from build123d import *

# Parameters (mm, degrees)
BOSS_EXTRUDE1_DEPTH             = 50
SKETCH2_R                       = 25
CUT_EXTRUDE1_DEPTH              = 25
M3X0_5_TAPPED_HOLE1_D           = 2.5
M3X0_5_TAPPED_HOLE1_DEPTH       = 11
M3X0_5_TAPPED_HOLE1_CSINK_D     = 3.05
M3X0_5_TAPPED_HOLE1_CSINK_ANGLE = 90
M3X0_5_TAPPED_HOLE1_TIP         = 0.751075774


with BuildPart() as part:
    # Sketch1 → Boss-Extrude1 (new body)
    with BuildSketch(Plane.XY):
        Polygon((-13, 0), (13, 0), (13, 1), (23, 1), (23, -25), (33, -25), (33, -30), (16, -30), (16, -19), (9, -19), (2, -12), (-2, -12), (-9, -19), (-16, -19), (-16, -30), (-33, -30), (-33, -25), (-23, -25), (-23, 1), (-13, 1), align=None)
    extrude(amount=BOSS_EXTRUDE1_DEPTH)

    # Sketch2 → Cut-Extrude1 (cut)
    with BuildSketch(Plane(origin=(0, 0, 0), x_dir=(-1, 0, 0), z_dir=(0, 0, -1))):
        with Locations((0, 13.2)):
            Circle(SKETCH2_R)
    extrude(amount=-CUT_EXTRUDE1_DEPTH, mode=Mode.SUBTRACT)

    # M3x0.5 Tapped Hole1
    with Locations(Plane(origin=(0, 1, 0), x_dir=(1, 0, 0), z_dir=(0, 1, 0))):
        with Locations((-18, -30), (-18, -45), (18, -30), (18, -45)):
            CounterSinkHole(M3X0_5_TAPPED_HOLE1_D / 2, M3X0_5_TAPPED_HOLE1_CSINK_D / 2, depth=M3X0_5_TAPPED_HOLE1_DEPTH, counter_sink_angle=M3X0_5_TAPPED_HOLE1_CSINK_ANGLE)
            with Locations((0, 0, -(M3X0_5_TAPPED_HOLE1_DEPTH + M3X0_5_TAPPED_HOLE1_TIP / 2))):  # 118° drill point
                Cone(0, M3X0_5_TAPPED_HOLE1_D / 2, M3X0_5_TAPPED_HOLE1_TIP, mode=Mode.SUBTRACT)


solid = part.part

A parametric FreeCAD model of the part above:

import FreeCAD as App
import Part
import Sketcher
Q = App.Units.Quantity


def add_polygon(sketch, points):
    """Adds a closed chain of lines whose ends are joined by coincident constraints."""
    first, n = sketch.GeometryCount, len(points)
    for a, b in zip(points, points[1:] + points[:1]):
        sketch.addGeometry(Part.LineSegment(App.Vector(*a, 0), App.Vector(*b, 0)), False)
    for i in range(n):
        sketch.addConstraint(Sketcher.Constraint("Coincident", first + i, 2, first + (i + 1) % n, 1))

doc = App.newDocument("Part")
body = doc.addObject("PartDesign::Body", "Body")

# Sketch on XY plane
sketch1 = body.newObject("Sketcher::SketchObject", "Sketch")
sketch1.AttachmentSupport = (doc.getObject("XY_Plane"), [""])
sketch1.MapMode = "FlatFace"
add_polygon(sketch1, [(13, 0), (-13, 0), (-13, 1), (-23, 1), (-23, -25), (-33, -25), (-33, -30), (-16, -30), (-16, -19), (-9, -19), (-2, -12), (2, -12), (9, -19), (16, -19), (16, -30), (33, -30), (33, -25), (23, -25), (23, 1), (13, 1)])  # lines 0-19
sketch1.addConstraint(Sketcher.Constraint("Horizontal", 0))
sketch1.addConstraint(Sketcher.Constraint("Vertical", 1))
sketch1.addConstraint(Sketcher.Constraint("Horizontal", 2))
sketch1.addConstraint(Sketcher.Constraint("Vertical", 3))
sketch1.addConstraint(Sketcher.Constraint("Horizontal", 4))
sketch1.addConstraint(Sketcher.Constraint("Vertical", 5))
sketch1.addConstraint(Sketcher.Constraint("Horizontal", 6))
sketch1.addConstraint(Sketcher.Constraint("Vertical", 7))
sketch1.addConstraint(Sketcher.Constraint("Horizontal", 8))
sketch1.addConstraint(Sketcher.Constraint("Horizontal", 10))
sketch1.addConstraint(Sketcher.Constraint("Horizontal", 12))
sketch1.addConstraint(Sketcher.Constraint("Vertical", 13))
sketch1.addConstraint(Sketcher.Constraint("Horizontal", 14))
sketch1.addConstraint(Sketcher.Constraint("Vertical", 15))
sketch1.addConstraint(Sketcher.Constraint("Horizontal", 16))
sketch1.addConstraint(Sketcher.Constraint("Vertical", 17))
sketch1.addConstraint(Sketcher.Constraint("Horizontal", 18))
sketch1.addConstraint(Sketcher.Constraint("Vertical", 19))
sketch1.addConstraint(Sketcher.Constraint("Symmetric", 0, 2, 19, 2, -1, 1))
sketch1.addConstraint(Sketcher.Constraint("Symmetric", 8, 2, 11, 2, -2))
sketch1.addConstraint(Sketcher.Constraint("Symmetric", 6, 2, 13, 2, -2))
sketch1.addConstraint(Sketcher.Constraint("Symmetric", 4, 2, 15, 2, -2))
sketch1.addConstraint(Sketcher.Constraint("Symmetric", 2, 2, 17, 2, -2))
sketch1.addConstraint(Sketcher.Constraint("Perpendicular", 9, 11))
sketch1.addConstraint(Sketcher.Constraint("Equal", 2, 4))
sketch1.addConstraint(Sketcher.Constraint("Equal", 0, 3))
sketch1.addConstraint(Sketcher.Constraint("Equal", 9, 11))
sketch1.addConstraint(Sketcher.Constraint("DistanceX", 0, 2, 0, 1, Q("26 mm")))
sketch1.addConstraint(Sketcher.Constraint("DistanceX", 2, 2, 2, 1, Q("10 mm")))
sketch1.addConstraint(Sketcher.Constraint("DistanceX", 6, 1, 6, 2, Q("17 mm")))
sketch1.addConstraint(Sketcher.Constraint("DistanceX", 8, 1, 8, 2, Q("7 mm")))
sketch1.addConstraint(Sketcher.Constraint("DistanceX", 10, 1, 10, 2, Q("4 mm")))
sketch1.addConstraint(Sketcher.Constraint("DistanceY", 1, 1, 1, 2, Q("1 mm")))
sketch1.addConstraint(Sketcher.Constraint("DistanceY", 5, 2, 5, 1, Q("5 mm")))
sketch1.addConstraint(Sketcher.Constraint("DistanceY", 7, 1, 7, 2, Q("11 mm")))
pad1 = body.newObject("PartDesign::Pad", "Pad")
pad1.Profile = sketch1
pad1.Length = 50

# Sketch on XY plane
sketch2 = body.newObject("Sketcher::SketchObject", "Sketch001")
sketch2.AttachmentSupport = (doc.getObject("XY_Plane"), [""])
sketch2.MapMode = "FlatFace"
sketch2.addGeometry(Part.Circle(App.Vector(0, 13, 0), App.Vector(0, 0, 1), 25), False)
sketch2.addConstraint(Sketcher.Constraint("PointOnObject", 0, 3, -2))
sketch2.addConstraint(Sketcher.Constraint("Diameter", 0, Q("50 mm")))
sketch2.addConstraint(Sketcher.Constraint("DistanceY", -1, 1, 0, 3, Q("13.2 mm")))
pocket1 = body.newObject("PartDesign::Pocket", "Pocket")
pocket1.Profile = sketch2
pocket1.Length = 25
pocket1.Reversed = True

# Sketch on XZ plane
sketch3 = body.newObject("Sketcher::SketchObject", "Sketch002")
sketch3.AttachmentSupport = (doc.getObject("XZ_Plane"), [""])
sketch3.MapMode = "FlatFace"
sketch3.AttachmentOffset = App.Placement(App.Vector(0, 0, -1), App.Rotation())
sketch3.addGeometry(Part.Circle(App.Vector(-18, 30, 0), App.Vector(0, 0, 1), 1.2), False)
sketch3.addGeometry(Part.Circle(App.Vector(-18, 45, 0), App.Vector(0, 0, 1), 1.2), False)
sketch3.addGeometry(Part.Circle(App.Vector(18, 30, 0), App.Vector(0, 0, 1), 1.2), False)
sketch3.addGeometry(Part.Circle(App.Vector(18, 45, 0), App.Vector(0, 0, 1), 1.2), False)
sketch3.addConstraint(Sketcher.Constraint("Equal", 0, 1))
sketch3.addConstraint(Sketcher.Constraint("Equal", 1, 2))
sketch3.addConstraint(Sketcher.Constraint("Equal", 2, 3))
sketch3.addConstraint(Sketcher.Constraint("Symmetric", 0, 3, 2, 3, -2))
sketch3.addConstraint(Sketcher.Constraint("Symmetric", 1, 3, 3, 3, -2))
sketch3.addConstraint(Sketcher.Constraint("Vertical", 0, 3, 1, 3))
sketch3.addConstraint(Sketcher.Constraint("Diameter", 0, Q("2.5 mm")))
sketch3.addConstraint(Sketcher.Constraint("DistanceX", 0, 3, -1, 1, Q("18 mm")))
sketch3.addConstraint(Sketcher.Constraint("DistanceY", -1, 1, 0, 3, Q("30 mm")))
sketch3.addConstraint(Sketcher.Constraint("DistanceY", -1, 1, 1, 3, Q("45 mm")))
doc.recompute()
hole = body.newObject("PartDesign::Hole", "Hole")
hole.Profile = sketch3
hole.ThreadType = "None"
hole.Diameter = 2.5
hole.DepthType = "Dimension"
hole.Depth = 11
hole.DrillPoint = "Angled"
hole.DrillPointAngle = 118
hole.HoleCutType = "Countersink"
hole.HoleCutDiameter = 3.05
hole.HoleCutCountersinkAngle = 90
hole.Reversed = True

doc.recompute()
